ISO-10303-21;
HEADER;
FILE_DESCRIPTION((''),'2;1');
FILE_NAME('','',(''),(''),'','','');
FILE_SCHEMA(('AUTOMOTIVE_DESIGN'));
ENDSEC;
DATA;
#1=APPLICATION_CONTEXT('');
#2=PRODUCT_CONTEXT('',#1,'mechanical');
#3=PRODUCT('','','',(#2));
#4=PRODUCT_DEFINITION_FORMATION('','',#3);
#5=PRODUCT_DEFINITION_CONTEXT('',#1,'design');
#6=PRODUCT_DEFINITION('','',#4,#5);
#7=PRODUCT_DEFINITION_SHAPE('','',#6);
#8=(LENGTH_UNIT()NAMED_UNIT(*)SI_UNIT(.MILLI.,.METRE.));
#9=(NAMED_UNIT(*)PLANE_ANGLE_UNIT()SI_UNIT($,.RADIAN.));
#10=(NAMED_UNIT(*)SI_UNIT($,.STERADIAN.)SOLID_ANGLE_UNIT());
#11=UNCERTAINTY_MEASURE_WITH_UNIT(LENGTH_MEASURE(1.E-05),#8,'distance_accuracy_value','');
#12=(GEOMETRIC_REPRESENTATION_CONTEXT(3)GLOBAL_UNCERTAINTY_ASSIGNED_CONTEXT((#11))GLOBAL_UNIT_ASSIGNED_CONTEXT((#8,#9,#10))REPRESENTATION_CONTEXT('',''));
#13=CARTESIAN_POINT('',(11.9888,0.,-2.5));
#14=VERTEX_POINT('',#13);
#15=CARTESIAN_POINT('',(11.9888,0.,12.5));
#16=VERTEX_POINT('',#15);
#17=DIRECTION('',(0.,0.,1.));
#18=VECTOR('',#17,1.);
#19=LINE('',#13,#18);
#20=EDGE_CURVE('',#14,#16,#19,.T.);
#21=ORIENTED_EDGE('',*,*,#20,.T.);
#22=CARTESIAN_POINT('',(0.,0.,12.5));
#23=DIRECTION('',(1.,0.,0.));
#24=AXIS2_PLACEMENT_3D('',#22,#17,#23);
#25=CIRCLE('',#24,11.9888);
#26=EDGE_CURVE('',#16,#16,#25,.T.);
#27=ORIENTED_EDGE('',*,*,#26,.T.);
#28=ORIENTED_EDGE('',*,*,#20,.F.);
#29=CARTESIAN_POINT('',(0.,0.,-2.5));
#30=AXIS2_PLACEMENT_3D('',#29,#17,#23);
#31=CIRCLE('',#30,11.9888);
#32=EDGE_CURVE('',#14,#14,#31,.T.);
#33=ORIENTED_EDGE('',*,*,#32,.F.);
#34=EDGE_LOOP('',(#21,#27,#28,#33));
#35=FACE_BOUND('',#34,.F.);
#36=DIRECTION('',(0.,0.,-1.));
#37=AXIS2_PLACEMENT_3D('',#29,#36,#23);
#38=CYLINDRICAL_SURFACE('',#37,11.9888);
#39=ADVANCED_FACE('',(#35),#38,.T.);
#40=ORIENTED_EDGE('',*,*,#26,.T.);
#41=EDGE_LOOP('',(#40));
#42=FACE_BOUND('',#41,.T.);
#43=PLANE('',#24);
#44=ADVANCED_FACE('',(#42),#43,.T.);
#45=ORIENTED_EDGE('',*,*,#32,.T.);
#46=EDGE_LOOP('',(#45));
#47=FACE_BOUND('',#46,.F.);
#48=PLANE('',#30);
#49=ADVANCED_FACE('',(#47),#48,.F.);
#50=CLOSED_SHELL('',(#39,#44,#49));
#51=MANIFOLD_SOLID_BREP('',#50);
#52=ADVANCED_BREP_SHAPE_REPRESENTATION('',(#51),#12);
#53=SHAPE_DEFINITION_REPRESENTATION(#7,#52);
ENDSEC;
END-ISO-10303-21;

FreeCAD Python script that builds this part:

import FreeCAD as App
import Part
import Sketcher

V = App.Vector

doc = App.newDocument("Part")
body = doc.addObject("PartDesign::Body", "Body")

sketch1 = body.newObject("Sketcher::SketchObject", "Sketch")
sketch1.AttachmentSupport = (doc.getObject("XY_Plane"), [""])
sketch1.MapMode = "FlatFace"
sketch1.AttachmentOffset = App.Placement(V(0, 0, -2.5), App.Rotation())
sketch1.addGeometry(Part.Circle(V(0, 0, 0), V(0, 0, 1), 12), False)
sketch1.addConstraint([
    Sketcher.Constraint("Coincident", 0, 3, -1, 1),
    Sketcher.Constraint("Diameter", 0, 23.9776),
])
pad1 = body.newObject("PartDesign::Pad", "Pad")
pad1.Profile = sketch1
pad1.Length = 15

doc.recompute()
